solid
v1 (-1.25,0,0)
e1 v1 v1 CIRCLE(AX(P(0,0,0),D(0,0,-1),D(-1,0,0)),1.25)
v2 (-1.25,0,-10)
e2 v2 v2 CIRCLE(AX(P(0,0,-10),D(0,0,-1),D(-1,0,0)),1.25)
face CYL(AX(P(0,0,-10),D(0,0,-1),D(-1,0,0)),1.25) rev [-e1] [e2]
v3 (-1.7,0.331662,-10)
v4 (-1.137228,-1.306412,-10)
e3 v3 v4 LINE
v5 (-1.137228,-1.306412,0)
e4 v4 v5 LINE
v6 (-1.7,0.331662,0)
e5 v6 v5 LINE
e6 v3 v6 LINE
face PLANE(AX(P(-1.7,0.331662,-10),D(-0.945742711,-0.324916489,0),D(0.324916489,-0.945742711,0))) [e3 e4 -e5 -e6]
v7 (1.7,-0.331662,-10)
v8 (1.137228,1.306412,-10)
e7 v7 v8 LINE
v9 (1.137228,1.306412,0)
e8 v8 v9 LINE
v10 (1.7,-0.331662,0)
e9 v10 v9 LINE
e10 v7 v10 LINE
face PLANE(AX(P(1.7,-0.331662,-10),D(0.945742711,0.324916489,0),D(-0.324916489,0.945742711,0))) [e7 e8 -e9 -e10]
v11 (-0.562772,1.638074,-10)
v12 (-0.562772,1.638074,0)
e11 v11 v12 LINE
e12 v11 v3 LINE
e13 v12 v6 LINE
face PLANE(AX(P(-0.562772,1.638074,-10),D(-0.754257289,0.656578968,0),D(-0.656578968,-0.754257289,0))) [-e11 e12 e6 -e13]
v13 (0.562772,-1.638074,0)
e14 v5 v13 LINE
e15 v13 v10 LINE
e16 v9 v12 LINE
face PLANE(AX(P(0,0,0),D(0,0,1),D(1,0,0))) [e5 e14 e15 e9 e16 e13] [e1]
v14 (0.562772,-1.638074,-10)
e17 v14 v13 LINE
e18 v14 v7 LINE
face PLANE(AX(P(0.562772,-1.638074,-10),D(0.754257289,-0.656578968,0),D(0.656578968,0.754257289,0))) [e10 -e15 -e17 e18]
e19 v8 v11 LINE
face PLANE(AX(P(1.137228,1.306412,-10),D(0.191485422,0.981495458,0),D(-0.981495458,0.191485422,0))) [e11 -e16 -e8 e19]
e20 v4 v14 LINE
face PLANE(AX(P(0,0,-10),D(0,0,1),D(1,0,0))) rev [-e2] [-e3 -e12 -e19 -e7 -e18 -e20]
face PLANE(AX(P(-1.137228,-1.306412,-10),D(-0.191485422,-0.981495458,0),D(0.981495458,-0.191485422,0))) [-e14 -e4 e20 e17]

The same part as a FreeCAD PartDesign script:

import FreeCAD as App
import Part
import Sketcher

V = App.Vector
Q = App.Units.Quantity


def add_polygon(sketch, points):
    """Adds a closed chain of lines whose ends are joined by coincident constraints."""
    first, n = sketch.GeometryCount, len(points)
    for a, b in zip(points, points[1:] + points[:1]):
        sketch.addGeometry(Part.LineSegment(App.Vector(*a, 0), App.Vector(*b, 0)), False)
    for i in range(n):
        sketch.addConstraint(Sketcher.Constraint("Coincident", first + i, 2, first + (i + 1) % n, 1))

doc = App.newDocument("Part")
body = doc.addObject("PartDesign::Body", "Body")

# Sketch on XY plane
sketch1 = body.newObject("Sketcher::SketchObject", "Sketch")
sketch1.AttachmentSupport = (doc.getObject("XY_Plane"), [""])
sketch1.MapMode = "FlatFace"
add_polygon(sketch1, [(0.6, -1.6), (1.7, -0.3), (1.1, 1.3), (-0.6, 1.6), (-1.7, 0.3), (-1.1, -1.3)])  # lines 0-5
sketch1.addConstraint([
    Sketcher.Constraint("Symmetric", 0, 2, 3, 2, -1, 1),
    Sketcher.Constraint("Symmetric", 1, 2, 4, 2, -1, 1),
    Sketcher.Constraint("Symmetric", 2, 2, 5, 2, -1, 1),
    Sketcher.Constraint("Equal", 0, 1),
    Sketcher.Constraint("Equal", 1, 2),
    Sketcher.Constraint("DistanceX", -1, 1, 0, 2, Q("1.7 mm")),
    Sketcher.Constraint("DistanceX", 2, 2, 1, 2, Q("1.7 mm")),
    Sketcher.Constraint("Distance", 0, Q("1.732051 mm")),
    Sketcher.Constraint("DistanceX", -1, 1, 1, 2, Q("1.137228 mm")),
])
pad1 = body.newObject("PartDesign::Pad", "Pad")
pad1.Profile = sketch1
pad1.Length = 10
pad1.Reversed = True

# Sketch on XY plane
sketch2 = body.newObject("Sketcher::SketchObject", "Sketch001")
sketch2.AttachmentSupport = (doc.getObject("XY_Plane"), [""])
sketch2.MapMode = "FlatFace"
sketch2.AttachmentOffset = App.Placement(V(0, 0, -10), App.Rotation())
sketch2.addGeometry(Part.Circle(V(0, 0, 0), V(0, 0, 1), 1.2), False)
sketch2.addConstraint([
    Sketcher.Constraint("Coincident", 0, 3, -1, 1),
    Sketcher.Constraint("Diameter", 0, Q("2.5 mm")),
])
doc.recompute()
hole = body.newObject("PartDesign::Hole", "Hole")
hole.Profile = sketch2
hole.ThreadType = "None"
hole.Diameter = 2.5
hole.DepthType = "ThroughAll"
hole.Reversed = True

doc.recompute()
